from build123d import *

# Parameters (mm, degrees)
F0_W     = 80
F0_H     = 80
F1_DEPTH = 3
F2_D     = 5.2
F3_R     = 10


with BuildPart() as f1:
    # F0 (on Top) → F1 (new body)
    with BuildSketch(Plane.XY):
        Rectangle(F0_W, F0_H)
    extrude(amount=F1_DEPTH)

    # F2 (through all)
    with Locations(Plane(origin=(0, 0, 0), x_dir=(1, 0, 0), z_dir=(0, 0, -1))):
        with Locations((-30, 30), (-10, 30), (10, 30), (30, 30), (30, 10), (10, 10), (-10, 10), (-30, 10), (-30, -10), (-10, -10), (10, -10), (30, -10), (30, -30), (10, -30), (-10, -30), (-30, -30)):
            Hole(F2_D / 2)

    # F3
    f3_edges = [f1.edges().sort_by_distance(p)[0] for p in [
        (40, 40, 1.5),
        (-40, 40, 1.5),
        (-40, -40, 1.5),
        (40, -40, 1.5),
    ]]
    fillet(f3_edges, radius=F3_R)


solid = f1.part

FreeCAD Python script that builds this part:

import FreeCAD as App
import Part
import Sketcher
Q = App.Units.Quantity


def edges_at(feature, points):
    """Names of the edges that pass closest to the given points."""
    edges = feature.Shape.Edges
    near = lambda p: min(range(len(edges)), key=lambda i: edges[i].distToShape(Part.Vertex(*p))[0])
    return sorted({f"Edge{near(p) + 1}" for p in points})

doc = App.newDocument("Part")
body = doc.addObject("PartDesign::Body", "Body")

# Sketch on XY plane
sketch1 = body.newObject("Sketcher::SketchObject", "Sketch")
sketch1.AttachmentSupport = (doc.getObject("XY_Plane"), [""])
sketch1.MapMode = "FlatFace"
sketch1.addGeometry([
    Part.LineSegment(App.Vector(-40, 40, 0), App.Vector(-40, -40, 0)),
    Part.LineSegment(App.Vector(-40, -40, 0), App.Vector(40, -40, 0)),
    Part.LineSegment(App.Vector(40, -40, 0), App.Vector(40, 40, 0)),
    Part.LineSegment(App.Vector(40, 40, 0), App.Vector(-40, 40, 0)),
], False)
sketch1.addConstraint([
    Sketcher.Constraint("Coincident", 0, 2, 1, 1),
    Sketcher.Constraint("Coincident", 1, 2, 2, 1),
    Sketcher.Constraint("Coincident", 2, 2, 3, 1),
    Sketcher.Constraint("Coincident", 3, 2, 0, 1),
    Sketcher.Constraint("Vertical", 0),
    Sketcher.Constraint("Horizontal", 1),
    Sketcher.Constraint("Vertical", 2),
    Sketcher.Constraint("Horizontal", 3),
    Sketcher.Constraint("Symmetric", 0, 2, 2, 2, -1, 1),
    Sketcher.Constraint("Equal", 3, 0),
    Sketcher.Constraint("DistanceX", 1, 1, 1, 2, Q("80 mm")),
])
pad1 = body.newObject("PartDesign::Pad", "Pad")
pad1.Profile = sketch1
pad1.Length = 3

# Sketch on XY plane
sketch2 = body.newObject("Sketcher::SketchObject", "Sketch001")
sketch2.AttachmentSupport = (doc.getObject("XY_Plane"), [""])
sketch2.MapMode = "FlatFace"
sketch2.addGeometry([
    Part.Circle(App.Vector(-30, -30, 0), App.Vector(0, 0, 1), 2.6),  # 0
    Part.Circle(App.Vector(-10, -30, 0), App.Vector(0, 0, 1), 2.6),  # 1
    Part.Circle(App.Vector(10, -30, 0), App.Vector(0, 0, 1), 2.6),  # 2
    Part.Circle(App.Vector(30, -30, 0), App.Vector(0, 0, 1), 2.6),  # 3
    Part.Circle(App.Vector(30, -10, 0), App.Vector(0, 0, 1), 2.6),  # 4
    Part.Circle(App.Vector(10, -10, 0), App.Vector(0, 0, 1), 2.6),  # 5
    Part.Circle(App.Vector(-10, -10, 0), App.Vector(0, 0, 1), 2.6),  # 6
    Part.Circle(App.Vector(-30, -10, 0), App.Vector(0, 0, 1), 2.6),  # 7
    Part.Circle(App.Vector(-30, 10, 0), App.Vector(0, 0, 1), 2.6),  # 8
    Part.Circle(App.Vector(-10, 10, 0), App.Vector(0, 0, 1), 2.6),  # 9
    Part.Circle(App.Vector(10, 10, 0), App.Vector(0, 0, 1), 2.6),  # 10
    Part.Circle(App.Vector(30, 10, 0), App.Vector(0, 0, 1), 2.6),  # 11
    Part.Circle(App.Vector(30, 30, 0), App.Vector(0, 0, 1), 2.6),  # 12
    Part.Circle(App.Vector(10, 30, 0), App.Vector(0, 0, 1), 2.6),  # 13
    Part.Circle(App.Vector(-10, 30, 0), App.Vector(0, 0, 1), 2.6),  # 14
    Part.Circle(App.Vector(-30, 30, 0), App.Vector(0, 0, 1), 2.6),  # 15
], False)
sketch2.addConstraint([
    Sketcher.Constraint("Equal", 0, 1),
    Sketcher.Constraint("Equal", 1, 2),
    Sketcher.Constraint("Equal", 2, 3),
    Sketcher.Constraint("Equal", 3, 4),
    Sketcher.Constraint("Equal", 4, 5),
    Sketcher.Constraint("Equal", 5, 6),
    Sketcher.Constraint("Equal", 6, 7),
    Sketcher.Constraint("Equal", 7, 8),
    Sketcher.Constraint("Equal", 8, 9),
    Sketcher.Constraint("Equal", 9, 10),
    Sketcher.Constraint("Equal", 10, 11),
    Sketcher.Constraint("Equal", 11, 12),
    Sketcher.Constraint("Equal", 12, 13),
    Sketcher.Constraint("Equal", 13, 14),
    Sketcher.Constraint("Equal", 14, 15),
    Sketcher.Constraint("Symmetric", 4, 3, 8, 3, -1, 1),
    Sketcher.Constraint("Symmetric", 5, 3, 9, 3, -1, 1),
    Sketcher.Constraint("Symmetric", 6, 3, 10, 3, -1, 1),
    Sketcher.Constraint("Symmetric", 7, 3, 11, 3, -1, 1),
    Sketcher.Constraint("Symmetric", 0, 3, 12, 3, -1, 1),
    Sketcher.Constraint("Symmetric", 1, 3, 13, 3, -1, 1),
    Sketcher.Constraint("Symmetric", 2, 3, 14, 3, -1, 1),
    Sketcher.Constraint("Symmetric", 3, 3, 15, 3, -1, 1),
    Sketcher.Constraint("Symmetric", 1, 3, 2, 3, -2),
    Sketcher.Constraint("Symmetric", 0, 3, 3, 3, -2),
    Sketcher.Constraint("Symmetric", 5, 3, 6, 3, -2),
    Sketcher.Constraint("Symmetric", 4, 3, 7, 3, -2),
    Sketcher.Constraint("Horizontal", 0, 3, 1, 3),
    Sketcher.Constraint("Horizontal", 4, 3, 5, 3),
    Sketcher.Constraint("Vertical", 3, 3, 4, 3),
    Sketcher.Constraint("Vertical", 2, 3, 5, 3),
    Sketcher.Constraint("Diameter", 0, Q("5.2 mm")),
    Sketcher.Constraint("DistanceX", 0, 3, -1, 1, Q("30 mm")),
    Sketcher.Constraint("DistanceY", 0, 3, -1, 1, Q("30 mm")),
    Sketcher.Constraint("DistanceX", 1, 3, -1, 1, Q("10 mm")),
    Sketcher.Constraint("DistanceY", 4, 3, -1, 1, Q("10 mm")),
])
doc.recompute()
hole = body.newObject("PartDesign::Hole", "Hole")
hole.Profile = sketch2
hole.ThreadType = "None"
hole.Diameter = 5.2
hole.DepthType = "ThroughAll"
hole.Reversed = True
doc.recompute()

fillet = body.newObject("PartDesign::Fillet", "Fillet")
fillet.Base = (hole, edges_at(hole, [
    (40, 40, 1.5),
    (-40, 40, 1.5),
    (-40, -40, 1.5),
    (40, -40, 1.5),
]))
fillet.Radius = 10

doc.recompute()
